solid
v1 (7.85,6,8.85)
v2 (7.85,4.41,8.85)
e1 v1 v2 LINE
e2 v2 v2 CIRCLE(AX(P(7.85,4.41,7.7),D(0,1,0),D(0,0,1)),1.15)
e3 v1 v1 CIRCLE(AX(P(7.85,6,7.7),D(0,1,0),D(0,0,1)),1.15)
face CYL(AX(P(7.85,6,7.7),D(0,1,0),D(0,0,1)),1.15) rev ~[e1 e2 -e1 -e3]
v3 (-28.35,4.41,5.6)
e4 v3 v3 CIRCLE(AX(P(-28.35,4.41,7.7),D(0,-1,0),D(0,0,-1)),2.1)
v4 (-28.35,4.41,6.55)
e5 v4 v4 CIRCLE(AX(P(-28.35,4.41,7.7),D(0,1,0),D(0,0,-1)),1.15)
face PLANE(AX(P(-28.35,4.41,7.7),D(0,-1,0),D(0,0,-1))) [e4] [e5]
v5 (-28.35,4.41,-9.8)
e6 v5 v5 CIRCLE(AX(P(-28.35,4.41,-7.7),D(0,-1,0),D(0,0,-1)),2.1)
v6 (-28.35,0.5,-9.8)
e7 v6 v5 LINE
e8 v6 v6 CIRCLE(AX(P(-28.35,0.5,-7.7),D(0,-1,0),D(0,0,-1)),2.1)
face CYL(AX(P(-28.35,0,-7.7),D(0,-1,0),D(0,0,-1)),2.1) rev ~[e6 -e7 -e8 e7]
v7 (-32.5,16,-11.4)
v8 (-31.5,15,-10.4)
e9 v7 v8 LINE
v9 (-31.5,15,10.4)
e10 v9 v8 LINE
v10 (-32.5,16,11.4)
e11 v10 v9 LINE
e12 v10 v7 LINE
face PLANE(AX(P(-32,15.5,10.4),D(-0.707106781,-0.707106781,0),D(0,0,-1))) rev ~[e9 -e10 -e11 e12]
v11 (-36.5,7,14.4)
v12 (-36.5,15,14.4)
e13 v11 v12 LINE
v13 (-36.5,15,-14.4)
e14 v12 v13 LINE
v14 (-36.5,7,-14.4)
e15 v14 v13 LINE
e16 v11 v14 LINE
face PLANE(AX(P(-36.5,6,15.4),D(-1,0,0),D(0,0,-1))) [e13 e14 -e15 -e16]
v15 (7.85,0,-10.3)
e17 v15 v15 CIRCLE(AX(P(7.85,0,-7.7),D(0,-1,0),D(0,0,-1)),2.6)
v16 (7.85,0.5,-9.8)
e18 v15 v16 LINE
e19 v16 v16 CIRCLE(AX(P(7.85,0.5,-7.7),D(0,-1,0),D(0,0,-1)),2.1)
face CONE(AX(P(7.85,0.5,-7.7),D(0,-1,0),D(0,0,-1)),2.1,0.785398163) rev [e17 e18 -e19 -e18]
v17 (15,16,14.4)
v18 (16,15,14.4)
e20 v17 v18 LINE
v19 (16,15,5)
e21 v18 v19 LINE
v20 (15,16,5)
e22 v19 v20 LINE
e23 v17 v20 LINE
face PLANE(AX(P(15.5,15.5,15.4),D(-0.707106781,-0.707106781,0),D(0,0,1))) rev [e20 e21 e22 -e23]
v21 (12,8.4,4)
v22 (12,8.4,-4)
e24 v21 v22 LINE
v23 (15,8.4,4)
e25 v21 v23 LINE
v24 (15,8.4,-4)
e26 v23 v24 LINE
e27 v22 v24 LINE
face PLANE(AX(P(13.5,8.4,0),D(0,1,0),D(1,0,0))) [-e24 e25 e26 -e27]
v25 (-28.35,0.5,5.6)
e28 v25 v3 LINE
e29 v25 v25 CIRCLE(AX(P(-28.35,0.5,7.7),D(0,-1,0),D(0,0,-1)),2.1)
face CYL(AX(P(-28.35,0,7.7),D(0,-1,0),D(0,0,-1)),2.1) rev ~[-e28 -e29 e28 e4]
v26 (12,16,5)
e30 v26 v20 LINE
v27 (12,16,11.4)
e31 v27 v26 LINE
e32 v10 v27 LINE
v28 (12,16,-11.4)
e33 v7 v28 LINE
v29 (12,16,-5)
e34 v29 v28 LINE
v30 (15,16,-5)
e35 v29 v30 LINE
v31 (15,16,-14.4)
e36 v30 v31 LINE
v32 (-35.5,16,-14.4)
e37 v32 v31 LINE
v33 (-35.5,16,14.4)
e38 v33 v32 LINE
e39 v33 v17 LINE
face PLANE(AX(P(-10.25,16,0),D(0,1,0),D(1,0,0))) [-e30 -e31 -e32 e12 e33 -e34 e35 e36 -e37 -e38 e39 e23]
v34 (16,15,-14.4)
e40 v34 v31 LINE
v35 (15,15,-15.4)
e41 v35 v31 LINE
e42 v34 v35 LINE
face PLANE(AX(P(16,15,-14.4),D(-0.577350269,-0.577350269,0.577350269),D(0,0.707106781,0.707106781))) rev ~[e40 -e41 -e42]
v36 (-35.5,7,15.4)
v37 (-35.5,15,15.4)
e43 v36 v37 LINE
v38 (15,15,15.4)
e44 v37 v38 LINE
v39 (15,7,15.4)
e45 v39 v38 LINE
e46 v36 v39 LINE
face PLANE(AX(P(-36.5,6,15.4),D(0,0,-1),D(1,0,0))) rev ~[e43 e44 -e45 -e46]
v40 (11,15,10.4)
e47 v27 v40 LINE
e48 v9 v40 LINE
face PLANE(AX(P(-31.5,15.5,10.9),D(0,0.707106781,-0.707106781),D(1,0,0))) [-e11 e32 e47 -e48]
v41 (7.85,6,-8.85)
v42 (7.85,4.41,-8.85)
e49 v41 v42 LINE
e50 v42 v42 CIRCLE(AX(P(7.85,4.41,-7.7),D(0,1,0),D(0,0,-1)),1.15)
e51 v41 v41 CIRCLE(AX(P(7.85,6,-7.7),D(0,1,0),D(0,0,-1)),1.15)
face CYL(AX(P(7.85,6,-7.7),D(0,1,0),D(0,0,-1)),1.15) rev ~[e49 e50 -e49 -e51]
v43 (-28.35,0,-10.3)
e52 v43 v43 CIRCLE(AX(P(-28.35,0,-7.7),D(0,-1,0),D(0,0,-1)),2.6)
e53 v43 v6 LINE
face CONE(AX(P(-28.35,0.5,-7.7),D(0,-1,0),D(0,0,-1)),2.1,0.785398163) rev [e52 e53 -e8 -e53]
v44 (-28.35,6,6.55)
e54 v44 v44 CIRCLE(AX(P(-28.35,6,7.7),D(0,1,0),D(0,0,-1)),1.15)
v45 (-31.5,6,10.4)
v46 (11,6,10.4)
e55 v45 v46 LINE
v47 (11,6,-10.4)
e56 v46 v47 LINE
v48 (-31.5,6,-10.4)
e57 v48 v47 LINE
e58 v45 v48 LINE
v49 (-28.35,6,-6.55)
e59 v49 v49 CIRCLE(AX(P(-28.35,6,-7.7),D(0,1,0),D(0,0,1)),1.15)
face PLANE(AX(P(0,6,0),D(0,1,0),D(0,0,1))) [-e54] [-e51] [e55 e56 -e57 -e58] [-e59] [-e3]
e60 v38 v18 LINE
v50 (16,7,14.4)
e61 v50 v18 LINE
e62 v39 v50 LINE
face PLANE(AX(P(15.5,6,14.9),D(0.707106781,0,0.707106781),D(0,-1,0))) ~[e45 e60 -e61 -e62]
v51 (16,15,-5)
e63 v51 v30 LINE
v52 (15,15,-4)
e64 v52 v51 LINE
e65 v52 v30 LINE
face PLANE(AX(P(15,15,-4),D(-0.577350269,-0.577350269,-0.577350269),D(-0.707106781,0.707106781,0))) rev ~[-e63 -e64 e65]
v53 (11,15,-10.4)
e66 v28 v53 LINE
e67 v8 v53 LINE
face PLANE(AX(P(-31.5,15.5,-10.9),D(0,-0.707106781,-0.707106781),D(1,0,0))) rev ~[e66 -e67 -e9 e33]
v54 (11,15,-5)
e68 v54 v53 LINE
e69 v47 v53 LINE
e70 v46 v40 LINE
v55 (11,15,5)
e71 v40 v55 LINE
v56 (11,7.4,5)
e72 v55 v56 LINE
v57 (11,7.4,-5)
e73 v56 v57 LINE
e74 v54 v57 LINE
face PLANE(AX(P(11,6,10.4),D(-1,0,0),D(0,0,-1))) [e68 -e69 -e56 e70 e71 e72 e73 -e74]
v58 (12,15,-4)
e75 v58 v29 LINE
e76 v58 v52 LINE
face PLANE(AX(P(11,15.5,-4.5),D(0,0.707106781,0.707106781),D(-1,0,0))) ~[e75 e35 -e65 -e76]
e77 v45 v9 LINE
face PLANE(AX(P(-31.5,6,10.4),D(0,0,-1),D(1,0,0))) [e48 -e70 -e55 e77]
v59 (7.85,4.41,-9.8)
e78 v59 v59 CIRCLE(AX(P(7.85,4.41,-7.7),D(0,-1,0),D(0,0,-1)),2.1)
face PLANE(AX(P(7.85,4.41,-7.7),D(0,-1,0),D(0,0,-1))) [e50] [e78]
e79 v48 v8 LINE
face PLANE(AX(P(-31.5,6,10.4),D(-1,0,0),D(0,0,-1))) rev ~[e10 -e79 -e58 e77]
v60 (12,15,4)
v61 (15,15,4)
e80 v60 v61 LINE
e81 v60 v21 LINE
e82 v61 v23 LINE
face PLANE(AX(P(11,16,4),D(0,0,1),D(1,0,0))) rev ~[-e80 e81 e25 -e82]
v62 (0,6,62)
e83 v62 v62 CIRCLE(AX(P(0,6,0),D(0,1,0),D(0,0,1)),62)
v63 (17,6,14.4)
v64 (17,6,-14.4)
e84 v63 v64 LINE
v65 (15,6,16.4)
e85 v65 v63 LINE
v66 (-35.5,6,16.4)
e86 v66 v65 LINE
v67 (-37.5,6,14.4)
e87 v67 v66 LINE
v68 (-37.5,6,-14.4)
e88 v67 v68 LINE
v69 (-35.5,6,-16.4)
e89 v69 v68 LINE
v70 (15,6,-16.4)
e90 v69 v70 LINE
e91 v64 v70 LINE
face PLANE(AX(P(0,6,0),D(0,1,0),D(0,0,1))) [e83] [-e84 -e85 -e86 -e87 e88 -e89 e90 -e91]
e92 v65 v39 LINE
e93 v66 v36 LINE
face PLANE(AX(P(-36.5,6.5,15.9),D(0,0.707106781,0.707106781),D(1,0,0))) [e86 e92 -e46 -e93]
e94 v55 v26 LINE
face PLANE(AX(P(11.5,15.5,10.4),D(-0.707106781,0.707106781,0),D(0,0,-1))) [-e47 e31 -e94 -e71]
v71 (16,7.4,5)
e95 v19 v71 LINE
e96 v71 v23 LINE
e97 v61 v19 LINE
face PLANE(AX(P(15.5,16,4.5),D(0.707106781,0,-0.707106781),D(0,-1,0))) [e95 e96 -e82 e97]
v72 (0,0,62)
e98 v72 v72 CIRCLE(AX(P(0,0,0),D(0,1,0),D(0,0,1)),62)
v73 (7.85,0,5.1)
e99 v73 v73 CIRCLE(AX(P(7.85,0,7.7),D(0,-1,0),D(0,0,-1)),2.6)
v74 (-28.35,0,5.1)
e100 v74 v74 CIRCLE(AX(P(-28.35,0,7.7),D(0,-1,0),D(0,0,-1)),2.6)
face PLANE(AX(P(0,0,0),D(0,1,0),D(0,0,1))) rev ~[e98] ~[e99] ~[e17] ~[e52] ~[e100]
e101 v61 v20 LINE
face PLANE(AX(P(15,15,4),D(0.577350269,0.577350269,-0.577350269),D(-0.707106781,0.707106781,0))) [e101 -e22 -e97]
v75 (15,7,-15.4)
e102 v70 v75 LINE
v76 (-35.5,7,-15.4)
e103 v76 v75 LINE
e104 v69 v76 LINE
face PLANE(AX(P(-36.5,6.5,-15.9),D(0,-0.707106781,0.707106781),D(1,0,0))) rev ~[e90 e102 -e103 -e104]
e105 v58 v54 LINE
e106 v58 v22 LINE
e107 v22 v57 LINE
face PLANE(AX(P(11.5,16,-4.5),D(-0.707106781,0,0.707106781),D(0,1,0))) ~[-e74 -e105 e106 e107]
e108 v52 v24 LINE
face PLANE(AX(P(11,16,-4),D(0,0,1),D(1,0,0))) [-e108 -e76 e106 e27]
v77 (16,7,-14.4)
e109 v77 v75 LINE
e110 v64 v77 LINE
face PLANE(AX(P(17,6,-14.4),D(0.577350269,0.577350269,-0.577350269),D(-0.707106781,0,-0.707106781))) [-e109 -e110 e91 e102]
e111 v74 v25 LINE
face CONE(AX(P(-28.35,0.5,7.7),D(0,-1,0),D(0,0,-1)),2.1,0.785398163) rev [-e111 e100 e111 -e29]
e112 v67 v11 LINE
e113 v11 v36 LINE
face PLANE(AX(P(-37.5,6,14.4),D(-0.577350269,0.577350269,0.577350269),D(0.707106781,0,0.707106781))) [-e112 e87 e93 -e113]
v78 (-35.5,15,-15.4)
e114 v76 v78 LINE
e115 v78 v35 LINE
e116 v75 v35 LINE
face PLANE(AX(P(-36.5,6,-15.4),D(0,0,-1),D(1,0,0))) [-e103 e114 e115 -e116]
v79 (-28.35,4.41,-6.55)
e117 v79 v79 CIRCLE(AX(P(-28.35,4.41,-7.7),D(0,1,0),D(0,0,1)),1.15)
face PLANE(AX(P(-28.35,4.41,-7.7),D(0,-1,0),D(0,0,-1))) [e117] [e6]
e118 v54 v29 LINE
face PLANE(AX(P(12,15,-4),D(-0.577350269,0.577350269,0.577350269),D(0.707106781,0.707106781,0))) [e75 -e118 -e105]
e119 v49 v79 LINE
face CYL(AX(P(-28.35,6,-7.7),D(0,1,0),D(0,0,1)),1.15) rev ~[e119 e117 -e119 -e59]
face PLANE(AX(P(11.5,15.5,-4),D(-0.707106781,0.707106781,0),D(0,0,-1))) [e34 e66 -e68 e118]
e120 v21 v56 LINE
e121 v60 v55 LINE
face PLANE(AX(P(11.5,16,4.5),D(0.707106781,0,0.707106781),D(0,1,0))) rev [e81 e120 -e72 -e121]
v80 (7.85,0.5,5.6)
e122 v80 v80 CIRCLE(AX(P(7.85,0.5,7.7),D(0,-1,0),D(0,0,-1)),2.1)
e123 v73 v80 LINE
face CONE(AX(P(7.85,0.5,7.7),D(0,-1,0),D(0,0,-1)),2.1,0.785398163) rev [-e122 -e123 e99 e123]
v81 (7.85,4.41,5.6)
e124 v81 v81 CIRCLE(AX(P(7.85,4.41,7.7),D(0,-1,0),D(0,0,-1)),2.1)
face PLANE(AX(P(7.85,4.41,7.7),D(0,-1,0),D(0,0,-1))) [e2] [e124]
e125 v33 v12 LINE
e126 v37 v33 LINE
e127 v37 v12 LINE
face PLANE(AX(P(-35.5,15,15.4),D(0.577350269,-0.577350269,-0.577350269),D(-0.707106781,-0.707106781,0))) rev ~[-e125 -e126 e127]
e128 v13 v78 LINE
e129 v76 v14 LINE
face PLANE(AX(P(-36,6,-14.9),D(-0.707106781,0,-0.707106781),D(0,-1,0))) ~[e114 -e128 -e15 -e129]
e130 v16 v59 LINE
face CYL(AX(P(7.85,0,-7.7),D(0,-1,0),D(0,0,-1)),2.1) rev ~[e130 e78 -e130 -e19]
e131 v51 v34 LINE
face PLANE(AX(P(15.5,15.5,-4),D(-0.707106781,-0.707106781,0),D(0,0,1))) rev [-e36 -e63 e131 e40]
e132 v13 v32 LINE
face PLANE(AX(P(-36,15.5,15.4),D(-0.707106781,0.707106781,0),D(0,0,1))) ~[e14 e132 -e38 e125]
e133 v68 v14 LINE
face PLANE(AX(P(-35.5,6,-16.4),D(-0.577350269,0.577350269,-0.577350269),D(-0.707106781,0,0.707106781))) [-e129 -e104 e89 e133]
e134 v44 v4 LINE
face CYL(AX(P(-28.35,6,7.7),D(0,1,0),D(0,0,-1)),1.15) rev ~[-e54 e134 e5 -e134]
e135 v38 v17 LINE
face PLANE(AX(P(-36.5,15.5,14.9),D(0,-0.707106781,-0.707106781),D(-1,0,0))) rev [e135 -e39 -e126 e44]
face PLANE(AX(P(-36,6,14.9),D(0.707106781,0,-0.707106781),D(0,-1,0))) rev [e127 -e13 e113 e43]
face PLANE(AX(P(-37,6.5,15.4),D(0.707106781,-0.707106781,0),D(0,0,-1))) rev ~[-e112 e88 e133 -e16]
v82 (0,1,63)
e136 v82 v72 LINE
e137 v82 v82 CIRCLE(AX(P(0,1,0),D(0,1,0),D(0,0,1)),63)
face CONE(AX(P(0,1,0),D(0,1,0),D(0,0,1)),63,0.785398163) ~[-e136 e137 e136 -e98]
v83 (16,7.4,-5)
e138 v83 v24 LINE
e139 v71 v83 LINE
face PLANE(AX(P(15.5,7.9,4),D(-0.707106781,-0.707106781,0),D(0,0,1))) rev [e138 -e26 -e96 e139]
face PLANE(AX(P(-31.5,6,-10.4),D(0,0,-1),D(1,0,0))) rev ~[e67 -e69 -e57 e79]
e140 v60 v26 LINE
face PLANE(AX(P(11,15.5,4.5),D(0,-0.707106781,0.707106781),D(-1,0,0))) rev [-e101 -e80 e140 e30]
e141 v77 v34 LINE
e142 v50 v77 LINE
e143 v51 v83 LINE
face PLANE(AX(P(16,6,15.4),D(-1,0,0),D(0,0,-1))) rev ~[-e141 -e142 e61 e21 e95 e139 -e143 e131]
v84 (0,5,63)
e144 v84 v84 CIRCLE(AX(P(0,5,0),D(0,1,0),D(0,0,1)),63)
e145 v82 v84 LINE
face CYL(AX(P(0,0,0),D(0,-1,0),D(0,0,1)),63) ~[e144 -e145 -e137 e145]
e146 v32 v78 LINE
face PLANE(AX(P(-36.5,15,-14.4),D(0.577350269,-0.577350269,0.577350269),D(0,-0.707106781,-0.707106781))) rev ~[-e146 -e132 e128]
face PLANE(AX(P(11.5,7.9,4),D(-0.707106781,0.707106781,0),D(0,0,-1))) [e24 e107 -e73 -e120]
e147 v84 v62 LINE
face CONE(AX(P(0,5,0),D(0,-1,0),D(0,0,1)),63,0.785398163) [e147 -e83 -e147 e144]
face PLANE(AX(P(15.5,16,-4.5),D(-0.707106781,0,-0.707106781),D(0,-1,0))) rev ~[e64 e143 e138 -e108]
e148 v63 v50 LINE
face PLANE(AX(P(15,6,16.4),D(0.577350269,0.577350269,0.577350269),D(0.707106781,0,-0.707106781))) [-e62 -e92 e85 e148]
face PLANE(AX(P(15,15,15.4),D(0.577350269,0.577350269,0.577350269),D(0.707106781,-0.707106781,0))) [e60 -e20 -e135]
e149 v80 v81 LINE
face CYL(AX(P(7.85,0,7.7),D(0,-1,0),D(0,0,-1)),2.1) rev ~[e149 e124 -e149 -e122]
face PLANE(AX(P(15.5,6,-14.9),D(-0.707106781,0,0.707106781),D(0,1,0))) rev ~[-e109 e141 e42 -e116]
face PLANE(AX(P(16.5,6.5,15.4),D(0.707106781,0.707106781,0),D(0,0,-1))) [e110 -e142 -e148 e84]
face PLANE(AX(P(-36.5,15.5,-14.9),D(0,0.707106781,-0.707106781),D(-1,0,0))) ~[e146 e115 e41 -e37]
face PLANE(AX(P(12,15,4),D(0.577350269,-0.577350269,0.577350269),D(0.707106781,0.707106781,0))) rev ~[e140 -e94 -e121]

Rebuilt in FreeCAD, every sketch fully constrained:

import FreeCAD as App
import Part
import Sketcher
Q = App.Units.Quantity


def edges_at(feature, points):
    """Names of the edges that pass closest to the given points."""
    edges = feature.Shape.Edges
    near = lambda p: min(range(len(edges)), key=lambda i: edges[i].distToShape(Part.Vertex(*p))[0])
    return sorted({f"Edge{near(p) + 1}" for p in points})


def add_polygon(sketch, points):
    """Adds a closed chain of lines whose ends are joined by coincident constraints."""
    first, n = sketch.GeometryCount, len(points)
    for a, b in zip(points, points[1:] + points[:1]):
        sketch.addGeometry(Part.LineSegment(App.Vector(*a, 0), App.Vector(*b, 0)), False)
    for i in range(n):
        sketch.addConstraint(Sketcher.Constraint("Coincident", first + i, 2, first + (i + 1) % n, 1))

doc = App.newDocument("Part")
body = doc.addObject("PartDesign::Body", "Body")

# Sketch on XZ plane
sketch1 = doc.addObject("Sketcher::SketchObject", "Sketch")
body.addObject(sketch1)
sketch1.AttachmentSupport = (doc.XZ_Plane, [""])
sketch1.MapMode = "FlatFace"
sketch1.addGeometry(Part.Circle(App.Vector(0, 0, 0), App.Vector(0, 0, 1), 63), False)
sketch1.addConstraint([
    Sketcher.Constraint("Coincident", 0, 3, -1, 1),
    Sketcher.Constraint("Diameter", 0, Q("126 mm")),
])
pad1 = doc.addObject("PartDesign::Pad", "Pad")
body.addObject(pad1)
pad1.Profile = sketch1
pad1.Length = 6
pad1.Reversed = True
doc.recompute()

chamfer = doc.addObject("PartDesign::Chamfer", "Chamfer")
body.addObject(chamfer)
chamfer.Base = (pad1, edges_at(pad1, [(0, 0, -63), (0, 6, -63)]))
chamfer.Size = 1

# Sketch on XZ plane
sketch2 = doc.addObject("Sketcher::SketchObject", "Sketch001")
body.addObject(sketch2)
sketch2.AttachmentSupport = (doc.XZ_Plane, [""])
sketch2.MapMode = "FlatFace"
sketch2.AttachmentOffset = App.Placement(App.Vector(0, 0, -6), App.Rotation())
add_polygon(sketch2, [(-36, -15), (-36, 15), (16, 15), (16, -15)])  # lines 0-3
add_polygon(sketch2, [(11, 10), (-32, 10), (-32, -10), (11, -10)])  # lines 4-7
sketch2.addConstraint([
    Sketcher.Constraint("Vertical", 0),
    Sketcher.Constraint("Horizontal", 1),
    Sketcher.Constraint("Vertical", 2),
    Sketcher.Constraint("Horizontal", 3),
    Sketcher.Constraint("Horizontal", 4),
    Sketcher.Constraint("Vertical", 5),
    Sketcher.Constraint("Horizontal", 6),
    Sketcher.Constraint("Vertical", 7),
    Sketcher.Constraint("DistanceX", 1, 1, 1, 2, Q("52.5 mm")),
    Sketcher.Constraint("DistanceX", 4, 2, 4, 1, Q("42.5 mm")),
    Sketcher.Constraint("DistanceY", 0, 1, 0, 2, Q("30.8 mm")),
    Sketcher.Constraint("DistanceY", 5, 2, 5, 1, Q("20.8 mm")),
    Sketcher.Constraint("DistanceX", -1, 1, 1, 2, Q("16 mm")),
    Sketcher.Constraint("DistanceX", -1, 1, 6, 2, Q("11 mm")),
    Sketcher.Constraint("DistanceY", 4, 2, 0, 2, Q("5 mm")),
    Sketcher.Constraint("DistanceY", -1, 1, 0, 2, Q("15.4 mm")),
])
pad2 = doc.addObject("PartDesign::Pad", "Pad001")
body.addObject(pad2)
pad2.Profile = sketch2
pad2.Length = 10
pad2.Reversed = True

# Sketch on XZ plane
sketch3 = doc.addObject("Sketcher::SketchObject", "Sketch002")
body.addObject(sketch3)
sketch3.AttachmentSupport = (doc.XZ_Plane, [""])
sketch3.MapMode = "FlatFace"
sketch3.AttachmentOffset = App.Placement(App.Vector(0, 0, -16), App.Rotation())
add_polygon(sketch3, [(11, -4), (11, 4), (16, 4), (16, -4)])  # lines 0-3
sketch3.addConstraint([
    Sketcher.Constraint("Vertical", 0),
    Sketcher.Constraint("Horizontal", 1),
    Sketcher.Constraint("Vertical", 2),
    Sketcher.Constraint("Horizontal", 3),
    Sketcher.Constraint("DistanceX", 1, 1, 1, 2, Q("5 mm")),
    Sketcher.Constraint("DistanceY", 0, 1, 0, 2, Q("8 mm")),
    Sketcher.Constraint("DistanceX", -1, 1, 0, 2, Q("11 mm")),
    Sketcher.Constraint("DistanceY", -1, 1, 0, 2, Q("4 mm")),
])
pocket1 = doc.addObject("PartDesign::Pocket", "Pocket")
body.addObject(pocket1)
pocket1.Profile = sketch3
pocket1.Length = 7.6
pocket1.Reversed = True

# Sketch on XZ plane
sketch4 = doc.addObject("Sketcher::SketchObject", "Sketch003")
body.addObject(sketch4)
sketch4.AttachmentSupport = (doc.XZ_Plane, [""])
sketch4.MapMode = "FlatFace"
sketch4.AttachmentOffset = App.Placement(App.Vector(0, 0, -6), App.Rotation())
sketch4.addGeometry([
    Part.Circle(App.Vector(-28.4, -7.7, 0), App.Vector(0, 0, 1), 1.1),
    Part.Circle(App.Vector(7.8, -7.7, 0), App.Vector(0, 0, 1), 1.1),
    Part.Circle(App.Vector(7.8, 7.7, 0), App.Vector(0, 0, 1), 1.1),
    Part.Circle(App.Vector(-28.4, 7.7, 0), App.Vector(0, 0, 1), 1.1),
], False)
sketch4.addConstraint([
    Sketcher.Constraint("Equal", 0, 1),
    Sketcher.Constraint("Equal", 1, 2),
    Sketcher.Constraint("Equal", 2, 3),
    Sketcher.Constraint("Symmetric", 1, 3, 2, 3, -1),
    Sketcher.Constraint("Symmetric", 0, 3, 3, 3, -1),
    Sketcher.Constraint("Horizontal", 0, 3, 1, 3),
    Sketcher.Constraint("Diameter", 0, Q("2.3 mm")),
    Sketcher.Constraint("DistanceY", 0, 3, -1, 1, Q("7.7 mm")),
    Sketcher.Constraint("DistanceX", 0, 3, 1, 3, Q("36.2 mm")),
    Sketcher.Constraint("DistanceX", 0, 3, -1, 1, Q("28.35 mm")),
])
pocket2 = doc.addObject("PartDesign::Pocket", "Pocket001")
body.addObject(pocket2)
pocket2.Profile = sketch4
pocket2.Type = "ThroughAll"
pocket2.Reversed = True

# Sketch on XZ plane
sketch5 = doc.addObject("Sketcher::SketchObject", "Sketch004")
body.addObject(sketch5)
sketch5.AttachmentSupport = (doc.XZ_Plane, [""])
sketch5.MapMode = "FlatFace"
sketch5.addGeometry([
    Part.Circle(App.Vector(-28.4, 7.7, 0), App.Vector(0, 0, 1), 2.1),
    Part.Circle(App.Vector(7.8, 7.7, 0), App.Vector(0, 0, 1), 2.1),
    Part.Circle(App.Vector(-28.4, -7.7, 0), App.Vector(0, 0, 1), 2.1),
    Part.Circle(App.Vector(7.8, -7.7, 0), App.Vector(0, 0, 1), 2.1),
], False)
sketch5.addConstraint([
    Sketcher.Constraint("Equal", 0, 1),
    Sketcher.Constraint("Equal", 1, 2),
    Sketcher.Constraint("Equal", 2, 3),
    Sketcher.Constraint("Symmetric", 0, 3, 2, 3, -1),
    Sketcher.Constraint("Symmetric", 1, 3, 3, 3, -1),
    Sketcher.Constraint("Horizontal", 0, 3, 1, 3),
    Sketcher.Constraint("Diameter", 0, Q("4.2 mm")),
    Sketcher.Constraint("DistanceY", -1, 1, 0, 3, Q("7.7 mm")),
    Sketcher.Constraint("DistanceX", 0, 3, 1, 3, Q("36.2 mm")),
    Sketcher.Constraint("DistanceX", 0, 3, -1, 1, Q("28.35 mm")),
])
pocket3 = doc.addObject("PartDesign::Pocket", "Pocket002")
body.addObject(pocket3)
pocket3.Profile = sketch5
pocket3.Length = 4.41
doc.recompute()

chamfer2 = doc.addObject("PartDesign::Chamfer", "Chamfer001")
body.addObject(chamfer2)
chamfer2.Base = (pocket3, edges_at(pocket3, [
    (16, 16, 9.7),
    (-10.25, 16, -15.4),
    (-36.5, 16, 0),
    (-10.25, 16, 15.4),
    (16, 6, 0),
    (16, 11, 15.4),
    (-10.25, 6, -15.4),
    (16, 11, -15.4),
    (-36.5, 6, 0),
    (-36.5, 11, -15.4),
    (-10.25, 6, 15.4),
    (-36.5, 11, 15.4),
    (11, 16, 7.2),
    (-10.25, 16, -10.4),
    (-31.5, 16, 0),
    (-10.25, 16, 10.4),
    (11, 16, -7.2),
    (16, 16, -9.7),
    (16, 8.4, 0),
    (16, 12.2, -4),
    (16, 12.2, 4),
    (11, 8.4, 0),
    (11, 12.2, 4),
    (11, 12.2, -4),
    (13.5, 16, -4),
    (13.5, 16, 4),
]))
chamfer2.Size = 1
doc.recompute()

chamfer3 = doc.addObject("PartDesign::Chamfer", "Chamfer002")
body.addObject(chamfer3)
chamfer3.Base = (chamfer2, edges_at(chamfer2, [
    (7.85, 0, 9.8),
    (-28.35, 0, -5.6),
    (7.85, 0, -5.6),
    (-28.35, 0, 9.8),
]))
chamfer3.Size = 0.5

doc.recompute()
